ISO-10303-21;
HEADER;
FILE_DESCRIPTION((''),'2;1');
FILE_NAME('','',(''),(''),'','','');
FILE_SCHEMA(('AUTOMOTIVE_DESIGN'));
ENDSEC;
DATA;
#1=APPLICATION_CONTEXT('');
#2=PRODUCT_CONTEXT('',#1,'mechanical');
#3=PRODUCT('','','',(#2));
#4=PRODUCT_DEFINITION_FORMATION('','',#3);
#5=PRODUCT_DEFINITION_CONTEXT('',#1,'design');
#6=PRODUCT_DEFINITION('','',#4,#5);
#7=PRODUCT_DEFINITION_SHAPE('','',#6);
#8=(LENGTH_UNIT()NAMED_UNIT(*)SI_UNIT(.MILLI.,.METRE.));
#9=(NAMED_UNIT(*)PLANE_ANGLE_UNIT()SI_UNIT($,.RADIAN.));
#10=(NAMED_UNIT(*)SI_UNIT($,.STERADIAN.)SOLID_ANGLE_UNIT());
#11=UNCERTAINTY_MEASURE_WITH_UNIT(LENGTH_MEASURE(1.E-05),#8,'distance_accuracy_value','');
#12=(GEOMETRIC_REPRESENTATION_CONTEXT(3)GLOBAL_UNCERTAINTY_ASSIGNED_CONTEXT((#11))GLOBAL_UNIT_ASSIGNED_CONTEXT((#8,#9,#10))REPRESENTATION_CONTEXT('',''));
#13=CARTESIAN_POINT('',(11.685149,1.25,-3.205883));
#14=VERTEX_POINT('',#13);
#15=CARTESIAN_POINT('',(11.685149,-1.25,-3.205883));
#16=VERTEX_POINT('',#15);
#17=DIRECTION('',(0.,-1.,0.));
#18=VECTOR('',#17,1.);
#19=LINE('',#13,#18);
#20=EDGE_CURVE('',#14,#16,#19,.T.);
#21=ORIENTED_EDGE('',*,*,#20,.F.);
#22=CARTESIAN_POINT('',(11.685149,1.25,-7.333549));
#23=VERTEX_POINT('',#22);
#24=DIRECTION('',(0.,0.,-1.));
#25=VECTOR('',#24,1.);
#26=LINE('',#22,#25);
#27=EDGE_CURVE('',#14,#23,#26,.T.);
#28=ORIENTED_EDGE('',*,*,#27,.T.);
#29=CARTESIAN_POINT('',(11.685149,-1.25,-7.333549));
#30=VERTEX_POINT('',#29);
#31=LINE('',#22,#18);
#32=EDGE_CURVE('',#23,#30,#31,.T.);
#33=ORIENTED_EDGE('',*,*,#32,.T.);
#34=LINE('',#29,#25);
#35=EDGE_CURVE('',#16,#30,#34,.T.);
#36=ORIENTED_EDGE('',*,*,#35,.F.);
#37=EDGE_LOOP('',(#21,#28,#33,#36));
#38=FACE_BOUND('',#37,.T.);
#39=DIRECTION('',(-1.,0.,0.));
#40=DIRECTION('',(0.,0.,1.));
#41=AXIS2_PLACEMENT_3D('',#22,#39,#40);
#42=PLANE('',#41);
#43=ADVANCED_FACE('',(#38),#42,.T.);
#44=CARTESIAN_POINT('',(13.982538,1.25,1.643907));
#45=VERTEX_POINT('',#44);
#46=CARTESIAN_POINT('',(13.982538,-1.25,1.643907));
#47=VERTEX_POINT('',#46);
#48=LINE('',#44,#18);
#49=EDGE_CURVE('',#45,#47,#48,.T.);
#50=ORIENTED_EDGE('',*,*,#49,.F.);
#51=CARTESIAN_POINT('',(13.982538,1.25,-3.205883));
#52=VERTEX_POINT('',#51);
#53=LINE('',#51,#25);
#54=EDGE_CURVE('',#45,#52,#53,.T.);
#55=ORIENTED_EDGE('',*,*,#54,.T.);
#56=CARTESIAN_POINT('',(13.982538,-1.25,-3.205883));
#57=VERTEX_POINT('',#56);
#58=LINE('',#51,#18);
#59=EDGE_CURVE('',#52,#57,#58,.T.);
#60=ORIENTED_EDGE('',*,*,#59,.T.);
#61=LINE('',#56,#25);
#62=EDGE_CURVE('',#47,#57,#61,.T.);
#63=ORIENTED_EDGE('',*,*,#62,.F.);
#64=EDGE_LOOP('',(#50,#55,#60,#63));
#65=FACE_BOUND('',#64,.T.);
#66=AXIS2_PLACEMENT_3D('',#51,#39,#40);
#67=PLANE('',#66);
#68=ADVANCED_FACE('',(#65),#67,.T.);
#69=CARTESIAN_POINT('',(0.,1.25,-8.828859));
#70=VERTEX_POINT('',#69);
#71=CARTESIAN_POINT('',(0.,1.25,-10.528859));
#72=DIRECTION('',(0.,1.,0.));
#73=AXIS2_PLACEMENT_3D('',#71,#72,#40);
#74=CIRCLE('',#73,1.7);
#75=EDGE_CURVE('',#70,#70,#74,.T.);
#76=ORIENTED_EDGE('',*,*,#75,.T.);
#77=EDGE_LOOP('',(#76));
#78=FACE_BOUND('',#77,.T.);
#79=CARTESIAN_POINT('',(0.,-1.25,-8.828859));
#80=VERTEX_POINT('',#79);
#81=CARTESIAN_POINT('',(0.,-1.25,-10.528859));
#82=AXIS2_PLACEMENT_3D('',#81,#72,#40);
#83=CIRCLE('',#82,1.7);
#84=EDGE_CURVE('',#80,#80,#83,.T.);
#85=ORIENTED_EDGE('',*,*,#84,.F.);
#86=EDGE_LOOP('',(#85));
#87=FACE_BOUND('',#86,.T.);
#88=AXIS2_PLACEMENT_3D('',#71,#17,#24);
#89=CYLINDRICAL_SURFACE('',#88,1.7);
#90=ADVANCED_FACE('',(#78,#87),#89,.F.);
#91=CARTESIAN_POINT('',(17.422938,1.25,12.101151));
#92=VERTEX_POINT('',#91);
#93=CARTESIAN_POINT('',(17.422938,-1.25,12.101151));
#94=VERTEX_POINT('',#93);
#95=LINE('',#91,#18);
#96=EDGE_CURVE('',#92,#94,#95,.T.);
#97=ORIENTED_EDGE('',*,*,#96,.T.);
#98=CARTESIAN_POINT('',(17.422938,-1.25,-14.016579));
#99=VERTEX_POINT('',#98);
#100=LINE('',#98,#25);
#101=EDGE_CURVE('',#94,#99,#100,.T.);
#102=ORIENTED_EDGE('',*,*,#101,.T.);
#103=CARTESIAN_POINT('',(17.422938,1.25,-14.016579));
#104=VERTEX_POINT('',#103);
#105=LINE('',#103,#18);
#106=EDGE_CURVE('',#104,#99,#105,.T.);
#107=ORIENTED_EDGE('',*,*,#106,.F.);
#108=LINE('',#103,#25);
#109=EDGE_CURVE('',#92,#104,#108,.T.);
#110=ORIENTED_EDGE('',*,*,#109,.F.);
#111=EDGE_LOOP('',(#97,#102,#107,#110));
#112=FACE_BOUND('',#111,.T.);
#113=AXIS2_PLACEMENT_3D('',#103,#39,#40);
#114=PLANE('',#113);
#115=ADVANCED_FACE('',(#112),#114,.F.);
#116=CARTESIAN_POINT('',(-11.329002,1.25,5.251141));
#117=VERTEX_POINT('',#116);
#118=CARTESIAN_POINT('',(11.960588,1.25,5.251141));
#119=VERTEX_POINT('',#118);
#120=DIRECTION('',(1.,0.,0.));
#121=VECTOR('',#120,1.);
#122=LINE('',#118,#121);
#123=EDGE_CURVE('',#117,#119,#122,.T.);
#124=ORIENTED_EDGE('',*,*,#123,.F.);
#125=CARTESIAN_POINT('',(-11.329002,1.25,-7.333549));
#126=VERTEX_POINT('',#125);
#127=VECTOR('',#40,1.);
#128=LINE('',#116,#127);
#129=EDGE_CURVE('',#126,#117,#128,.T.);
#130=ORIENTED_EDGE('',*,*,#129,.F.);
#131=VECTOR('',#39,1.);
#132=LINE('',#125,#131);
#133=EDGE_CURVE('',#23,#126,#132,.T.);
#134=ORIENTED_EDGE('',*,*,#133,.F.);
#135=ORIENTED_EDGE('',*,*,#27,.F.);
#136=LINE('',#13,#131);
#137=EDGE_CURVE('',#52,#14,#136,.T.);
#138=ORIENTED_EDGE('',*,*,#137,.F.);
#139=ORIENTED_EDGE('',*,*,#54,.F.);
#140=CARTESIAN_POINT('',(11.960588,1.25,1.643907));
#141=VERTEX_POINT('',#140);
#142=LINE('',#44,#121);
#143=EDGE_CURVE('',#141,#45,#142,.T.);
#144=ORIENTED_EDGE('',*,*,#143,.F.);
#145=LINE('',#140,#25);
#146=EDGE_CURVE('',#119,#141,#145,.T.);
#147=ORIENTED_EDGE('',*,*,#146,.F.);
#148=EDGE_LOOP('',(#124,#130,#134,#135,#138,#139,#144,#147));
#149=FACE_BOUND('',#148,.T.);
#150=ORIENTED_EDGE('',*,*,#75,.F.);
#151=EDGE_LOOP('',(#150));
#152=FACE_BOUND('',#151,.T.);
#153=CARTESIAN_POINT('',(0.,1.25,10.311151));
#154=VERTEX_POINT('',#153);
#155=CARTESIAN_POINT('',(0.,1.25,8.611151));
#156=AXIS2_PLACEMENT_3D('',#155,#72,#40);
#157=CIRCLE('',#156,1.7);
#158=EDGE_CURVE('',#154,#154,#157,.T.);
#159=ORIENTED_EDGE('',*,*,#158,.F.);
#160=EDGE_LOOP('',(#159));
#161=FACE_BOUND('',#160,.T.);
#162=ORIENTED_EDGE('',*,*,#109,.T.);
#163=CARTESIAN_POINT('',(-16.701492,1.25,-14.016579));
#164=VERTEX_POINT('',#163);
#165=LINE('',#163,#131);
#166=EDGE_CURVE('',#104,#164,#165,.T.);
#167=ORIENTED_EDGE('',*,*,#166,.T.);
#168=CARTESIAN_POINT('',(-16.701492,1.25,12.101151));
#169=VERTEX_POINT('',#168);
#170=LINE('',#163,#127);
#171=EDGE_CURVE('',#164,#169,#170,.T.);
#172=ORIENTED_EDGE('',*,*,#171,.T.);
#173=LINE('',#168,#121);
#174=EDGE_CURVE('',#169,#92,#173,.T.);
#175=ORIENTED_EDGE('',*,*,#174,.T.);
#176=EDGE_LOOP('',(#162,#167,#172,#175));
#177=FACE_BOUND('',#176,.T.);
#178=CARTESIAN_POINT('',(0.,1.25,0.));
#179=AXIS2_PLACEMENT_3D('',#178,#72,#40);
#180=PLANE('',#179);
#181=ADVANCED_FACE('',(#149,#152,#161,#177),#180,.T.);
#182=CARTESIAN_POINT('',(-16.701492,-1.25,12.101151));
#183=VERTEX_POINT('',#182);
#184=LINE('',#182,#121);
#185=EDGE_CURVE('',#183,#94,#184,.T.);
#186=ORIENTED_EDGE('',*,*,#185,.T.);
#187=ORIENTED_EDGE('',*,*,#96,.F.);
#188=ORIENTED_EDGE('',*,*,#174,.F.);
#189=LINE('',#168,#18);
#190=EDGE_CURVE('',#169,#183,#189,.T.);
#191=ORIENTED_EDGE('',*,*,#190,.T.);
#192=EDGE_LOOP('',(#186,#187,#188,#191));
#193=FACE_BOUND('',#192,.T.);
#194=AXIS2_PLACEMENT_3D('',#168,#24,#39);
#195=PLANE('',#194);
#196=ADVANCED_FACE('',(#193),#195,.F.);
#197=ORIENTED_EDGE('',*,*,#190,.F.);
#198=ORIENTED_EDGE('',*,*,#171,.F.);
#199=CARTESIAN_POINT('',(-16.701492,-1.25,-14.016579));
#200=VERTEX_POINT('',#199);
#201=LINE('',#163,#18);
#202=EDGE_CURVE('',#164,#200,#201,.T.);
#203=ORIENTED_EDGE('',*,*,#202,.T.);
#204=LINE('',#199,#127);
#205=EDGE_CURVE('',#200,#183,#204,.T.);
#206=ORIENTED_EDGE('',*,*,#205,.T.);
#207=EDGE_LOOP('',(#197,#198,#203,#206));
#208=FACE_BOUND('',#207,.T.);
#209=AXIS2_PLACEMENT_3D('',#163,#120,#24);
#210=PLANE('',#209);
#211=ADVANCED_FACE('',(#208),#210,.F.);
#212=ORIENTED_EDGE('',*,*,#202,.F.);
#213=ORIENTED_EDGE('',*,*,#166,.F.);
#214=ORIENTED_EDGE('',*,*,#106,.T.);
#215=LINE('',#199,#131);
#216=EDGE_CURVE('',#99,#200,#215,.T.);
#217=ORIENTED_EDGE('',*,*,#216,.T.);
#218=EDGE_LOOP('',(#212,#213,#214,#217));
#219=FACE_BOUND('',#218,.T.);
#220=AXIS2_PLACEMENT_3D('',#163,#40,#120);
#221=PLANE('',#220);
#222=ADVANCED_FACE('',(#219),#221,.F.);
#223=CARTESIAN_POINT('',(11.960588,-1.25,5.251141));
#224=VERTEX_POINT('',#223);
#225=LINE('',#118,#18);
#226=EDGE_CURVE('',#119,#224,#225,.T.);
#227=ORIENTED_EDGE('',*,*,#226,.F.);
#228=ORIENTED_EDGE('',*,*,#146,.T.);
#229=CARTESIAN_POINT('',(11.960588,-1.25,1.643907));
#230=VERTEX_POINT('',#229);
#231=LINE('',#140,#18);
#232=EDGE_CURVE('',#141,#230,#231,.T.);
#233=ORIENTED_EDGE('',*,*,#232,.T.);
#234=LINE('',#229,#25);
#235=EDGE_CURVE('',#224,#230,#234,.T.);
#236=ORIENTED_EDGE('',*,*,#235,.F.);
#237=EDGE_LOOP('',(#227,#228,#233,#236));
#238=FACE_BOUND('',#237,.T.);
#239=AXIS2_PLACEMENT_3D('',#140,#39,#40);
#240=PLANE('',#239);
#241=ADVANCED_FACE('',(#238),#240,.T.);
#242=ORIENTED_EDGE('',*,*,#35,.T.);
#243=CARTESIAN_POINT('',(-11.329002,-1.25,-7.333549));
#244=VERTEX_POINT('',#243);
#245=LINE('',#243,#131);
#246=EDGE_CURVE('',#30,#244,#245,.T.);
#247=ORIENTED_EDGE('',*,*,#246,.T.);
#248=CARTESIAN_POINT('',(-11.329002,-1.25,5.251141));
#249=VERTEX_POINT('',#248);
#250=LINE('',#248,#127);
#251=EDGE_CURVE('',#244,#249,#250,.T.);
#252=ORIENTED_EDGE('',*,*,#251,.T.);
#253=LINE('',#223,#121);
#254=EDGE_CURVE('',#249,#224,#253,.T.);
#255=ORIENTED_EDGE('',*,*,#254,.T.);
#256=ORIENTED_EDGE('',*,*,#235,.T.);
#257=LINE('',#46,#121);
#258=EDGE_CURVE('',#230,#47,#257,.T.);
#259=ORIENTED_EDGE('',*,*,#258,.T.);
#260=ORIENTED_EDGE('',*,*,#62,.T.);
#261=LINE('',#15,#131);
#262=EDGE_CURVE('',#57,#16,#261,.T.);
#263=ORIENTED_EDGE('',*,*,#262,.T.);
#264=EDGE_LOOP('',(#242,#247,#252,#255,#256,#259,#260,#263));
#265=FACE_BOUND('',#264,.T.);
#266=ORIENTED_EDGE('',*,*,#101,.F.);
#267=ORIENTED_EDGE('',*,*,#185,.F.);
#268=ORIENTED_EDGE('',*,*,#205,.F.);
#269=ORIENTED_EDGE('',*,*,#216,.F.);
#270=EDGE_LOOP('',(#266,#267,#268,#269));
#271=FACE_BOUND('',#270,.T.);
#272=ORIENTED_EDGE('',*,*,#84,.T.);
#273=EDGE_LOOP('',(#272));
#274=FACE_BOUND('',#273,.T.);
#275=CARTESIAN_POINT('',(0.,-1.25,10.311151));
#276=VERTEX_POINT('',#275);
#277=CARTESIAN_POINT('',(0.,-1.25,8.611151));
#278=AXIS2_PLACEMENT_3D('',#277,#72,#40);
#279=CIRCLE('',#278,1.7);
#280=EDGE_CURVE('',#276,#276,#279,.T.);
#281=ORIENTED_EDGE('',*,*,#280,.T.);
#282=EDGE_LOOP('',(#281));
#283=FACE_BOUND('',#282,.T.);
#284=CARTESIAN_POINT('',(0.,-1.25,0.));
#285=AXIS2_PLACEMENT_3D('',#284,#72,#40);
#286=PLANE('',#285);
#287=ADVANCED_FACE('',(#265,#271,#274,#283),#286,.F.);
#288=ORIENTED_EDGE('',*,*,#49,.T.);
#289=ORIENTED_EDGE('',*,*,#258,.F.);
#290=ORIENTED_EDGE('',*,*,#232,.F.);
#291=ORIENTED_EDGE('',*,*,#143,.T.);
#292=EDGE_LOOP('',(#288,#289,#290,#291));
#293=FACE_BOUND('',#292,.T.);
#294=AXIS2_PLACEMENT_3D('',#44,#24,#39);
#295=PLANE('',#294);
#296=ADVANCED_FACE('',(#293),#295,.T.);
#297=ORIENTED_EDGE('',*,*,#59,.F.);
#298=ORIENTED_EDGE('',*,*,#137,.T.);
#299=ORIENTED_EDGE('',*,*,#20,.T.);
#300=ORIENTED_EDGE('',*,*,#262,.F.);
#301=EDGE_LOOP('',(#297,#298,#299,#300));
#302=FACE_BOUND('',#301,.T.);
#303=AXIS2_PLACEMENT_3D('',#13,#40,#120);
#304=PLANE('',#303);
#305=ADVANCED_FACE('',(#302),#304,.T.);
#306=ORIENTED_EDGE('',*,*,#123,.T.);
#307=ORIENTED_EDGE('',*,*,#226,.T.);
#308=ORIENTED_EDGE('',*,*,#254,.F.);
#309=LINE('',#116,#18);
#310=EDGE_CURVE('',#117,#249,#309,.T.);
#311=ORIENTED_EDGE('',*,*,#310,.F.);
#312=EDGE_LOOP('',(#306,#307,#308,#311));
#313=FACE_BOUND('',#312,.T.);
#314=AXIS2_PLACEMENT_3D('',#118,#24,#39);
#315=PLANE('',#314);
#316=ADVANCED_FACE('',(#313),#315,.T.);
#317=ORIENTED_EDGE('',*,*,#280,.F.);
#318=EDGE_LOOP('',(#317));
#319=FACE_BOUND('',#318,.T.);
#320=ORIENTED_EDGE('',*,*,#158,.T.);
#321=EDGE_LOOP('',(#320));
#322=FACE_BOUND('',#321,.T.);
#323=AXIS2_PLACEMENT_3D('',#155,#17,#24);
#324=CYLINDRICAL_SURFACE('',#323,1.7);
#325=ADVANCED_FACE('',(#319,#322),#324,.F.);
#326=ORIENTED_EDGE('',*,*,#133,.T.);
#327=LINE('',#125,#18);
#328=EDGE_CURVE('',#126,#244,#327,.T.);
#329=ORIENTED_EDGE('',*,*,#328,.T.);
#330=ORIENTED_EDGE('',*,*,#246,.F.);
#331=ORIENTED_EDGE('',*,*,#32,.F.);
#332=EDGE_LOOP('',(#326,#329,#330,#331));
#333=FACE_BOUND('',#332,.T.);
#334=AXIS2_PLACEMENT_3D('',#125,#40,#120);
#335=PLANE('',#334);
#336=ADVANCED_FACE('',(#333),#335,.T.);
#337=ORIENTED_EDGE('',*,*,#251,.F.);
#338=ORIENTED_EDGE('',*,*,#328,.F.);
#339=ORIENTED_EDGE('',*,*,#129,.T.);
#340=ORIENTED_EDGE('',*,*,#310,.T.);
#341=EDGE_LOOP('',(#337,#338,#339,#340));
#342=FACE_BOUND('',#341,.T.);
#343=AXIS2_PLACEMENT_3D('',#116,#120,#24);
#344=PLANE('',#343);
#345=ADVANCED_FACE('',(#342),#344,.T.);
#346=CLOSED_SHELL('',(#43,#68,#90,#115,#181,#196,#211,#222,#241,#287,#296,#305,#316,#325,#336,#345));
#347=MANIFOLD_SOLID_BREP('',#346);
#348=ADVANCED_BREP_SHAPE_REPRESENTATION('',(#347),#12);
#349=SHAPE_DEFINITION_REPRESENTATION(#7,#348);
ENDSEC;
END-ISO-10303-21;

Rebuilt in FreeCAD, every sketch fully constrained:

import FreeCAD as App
import Part
import Sketcher
from FreeCAD import Vector


def add_polygon(sketch, points):
    """Adds a closed chain of lines whose ends are joined by coincident constraints."""
    first, n = sketch.GeometryCount, len(points)
    for a, b in zip(points, points[1:] + points[:1]):
        sketch.addGeometry(Part.LineSegment(App.Vector(*a, 0), App.Vector(*b, 0)), False)
    for i in range(n):
        sketch.addConstraint(Sketcher.Constraint("Coincident", first + i, 2, first + (i + 1) % n, 1))

doc = App.newDocument("Part")
body = doc.addObject("PartDesign::Body", "Body")

sketch1 = body.newObject("Sketcher::SketchObject", "Sketch")
sketch1.AttachmentSupport = (doc.getObject("XZ_Plane"), [""])
sketch1.MapMode = "FlatFace"
add_polygon(sketch1, [(-16.7, -14), (-16.7, 12.1), (17.4, 12.1), (17.4, -14)])
sketch1.addGeometry(Part.Circle(Vector(0, 8.6, 0), Vector(0, 0, 1), 1.7), False)
sketch1.addGeometry(Part.Circle(Vector(0, -10.5, 0), Vector(0, 0, 1), 1.7), False)
add_polygon(sketch1, [(-11.3, 5.3), (-11.3, -7.3), (11.7, -7.3), (11.7, -3.2), (14, -3.2), (14, 1.6), (12, 1.6), (12, 5.3)])
sketch1.addConstraint([
    Sketcher.Constraint("Vertical", 0),
    Sketcher.Constraint("Horizontal", 1),
    Sketcher.Constraint("Vertical", 2),
    Sketcher.Constraint("Horizontal", 3),
    Sketcher.Constraint("Vertical", 6),
    Sketcher.Constraint("Horizontal", 7),
    Sketcher.Constraint("Vertical", 8),
    Sketcher.Constraint("Horizontal", 9),
    Sketcher.Constraint("Vertical", 10),
    Sketcher.Constraint("Horizontal", 11),
    Sketcher.Constraint("Vertical", 12),
    Sketcher.Constraint("Horizontal", 13),
    Sketcher.Constraint("Equal", 4, 5),
    Sketcher.Constraint("PointOnObject", 4, 3, -2),
    Sketcher.Constraint("PointOnObject", 5, 3, -2),
    Sketcher.Constraint("Diameter", 4, 3.4),
    Sketcher.Constraint("DistanceY", 4, 3, 0, 2, 3.49),
    Sketcher.Constraint("DistanceY", 5, 3, 13, 2, 15.78),
    Sketcher.Constraint("DistanceX", 6, 2, -1, 1, 11.329002),
    Sketcher.Constraint("DistanceX", 1, 1, 1, 2, 34.12443),
    Sketcher.Constraint("DistanceX", 7, 1, 7, 2, 23.01415),
    Sketcher.Constraint("DistanceX", 9, 1, 9, 2, 2.29739),
    Sketcher.Constraint("DistanceX", 11, 2, 11, 1, 2.02195),
    Sketcher.Constraint("DistanceY", 0, 1, 0, 2, 26.11773),
    Sketcher.Constraint("DistanceY", 6, 2, 6, 1, 12.58469),
    Sketcher.Constraint("DistanceY", 10, 1, 10, 2, 4.84979),
    Sketcher.Constraint("DistanceY", 6, 2, 4, 3, 15.9447),
    Sketcher.Constraint("DistanceX", 9, 2, 2, 2, 3.4404),
    Sketcher.Constraint("DistanceY", 8, 1, 8, 2, 4.127666),
    Sketcher.Constraint("DistanceY", -1, 1, 4, 3, 8.611151),
])
pad1 = body.newObject("PartDesign::Pad", "Pad")
pad1.Profile = sketch1
pad1.Length = 2.5
pad1.Midplane = True

doc.recompute()
